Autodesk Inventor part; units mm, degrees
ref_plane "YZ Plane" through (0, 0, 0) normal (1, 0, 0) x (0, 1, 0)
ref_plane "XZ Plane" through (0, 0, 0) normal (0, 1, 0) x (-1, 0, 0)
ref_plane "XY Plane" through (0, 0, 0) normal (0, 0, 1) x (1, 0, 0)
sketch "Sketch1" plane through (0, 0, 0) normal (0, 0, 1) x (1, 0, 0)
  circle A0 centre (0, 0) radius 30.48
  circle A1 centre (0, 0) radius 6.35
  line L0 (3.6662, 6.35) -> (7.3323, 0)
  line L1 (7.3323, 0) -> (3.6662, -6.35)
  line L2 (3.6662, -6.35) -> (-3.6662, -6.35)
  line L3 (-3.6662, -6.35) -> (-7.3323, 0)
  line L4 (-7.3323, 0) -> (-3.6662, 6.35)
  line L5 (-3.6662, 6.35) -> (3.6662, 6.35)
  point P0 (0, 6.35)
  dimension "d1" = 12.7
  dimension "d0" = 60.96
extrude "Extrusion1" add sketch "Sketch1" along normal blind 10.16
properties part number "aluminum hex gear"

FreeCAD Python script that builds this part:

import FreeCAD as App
import Part
import Sketcher

V = App.Vector
Q = App.Units.Quantity


def add_polygon(sketch, points):
    """Adds a closed chain of lines whose ends are joined by coincident constraints."""
    first, n = sketch.GeometryCount, len(points)
    for a, b in zip(points, points[1:] + points[:1]):
        sketch.addGeometry(Part.LineSegment(App.Vector(*a, 0), App.Vector(*b, 0)), False)
    for i in range(n):
        sketch.addConstraint(Sketcher.Constraint("Coincident", first + i, 2, first + (i + 1) % n, 1))

doc = App.newDocument("Part")
body = doc.addObject("PartDesign::Body", "Body")

# Sketch on XY plane
sketch1 = doc.addObject("Sketcher::SketchObject", "Sketch")
body.addObject(sketch1)
sketch1.AttachmentSupport = (doc.XY_Plane, [""])
sketch1.MapMode = "FlatFace"
sketch1.addGeometry(Part.Circle(V(0, 0, 0), V(0, 0, 1), 30.48), False)  # 0
add_polygon(sketch1, [(3.6662, 6.35), (7.3323, 0), (3.6662, -6.35), (-3.6662, -6.35), (-7.3323, 0), (-3.6662, 6.35)])  # lines 1-6
sketch1.addConstraint([
    Sketcher.Constraint("Horizontal", 3),
    Sketcher.Constraint("Horizontal", 6),
    Sketcher.Constraint("Coincident", 0, 3, -1, 1),
    Sketcher.Constraint("Symmetric", 1, 2, 4, 2, -1, 1),
    Sketcher.Constraint("Symmetric", 2, 2, 5, 2, -1, 1),
    Sketcher.Constraint("PointOnObject", 1, 2, -1),
    Sketcher.Constraint("Parallel", 1, 4),
    Sketcher.Constraint("Vertical", 3, 2, 5, 2),
    Sketcher.Constraint("Diameter", 0, Q("2.4 in")),
    Sketcher.Constraint("DistanceY", 3, 2, 5, 2, Q("0.5 in")),
    Sketcher.Constraint("Angle", 1, Q("-60.0005 deg")),
    Sketcher.Constraint("DistanceX", 3, 2, 1, 2, Q("0.433 in")),
])
pad1 = doc.addObject("PartDesign::Pad", "Pad")
body.addObject(pad1)
pad1.Profile = sketch1
pad1.Length = Q("0.4 in")

doc.recompute()
